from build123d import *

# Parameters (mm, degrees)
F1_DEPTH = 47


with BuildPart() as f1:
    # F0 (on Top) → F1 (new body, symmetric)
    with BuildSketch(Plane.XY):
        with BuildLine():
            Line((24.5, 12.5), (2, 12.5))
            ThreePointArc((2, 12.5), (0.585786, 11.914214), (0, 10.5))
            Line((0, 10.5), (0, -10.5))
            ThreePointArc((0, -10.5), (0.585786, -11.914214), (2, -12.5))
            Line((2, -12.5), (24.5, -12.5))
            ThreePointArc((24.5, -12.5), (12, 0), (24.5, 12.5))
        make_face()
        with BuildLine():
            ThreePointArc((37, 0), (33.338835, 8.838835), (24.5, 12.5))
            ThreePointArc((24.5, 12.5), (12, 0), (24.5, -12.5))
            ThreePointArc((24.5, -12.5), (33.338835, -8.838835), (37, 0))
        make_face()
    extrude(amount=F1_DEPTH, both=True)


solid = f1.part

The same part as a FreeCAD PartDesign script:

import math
import FreeCAD as App
import Part
import Sketcher

V = App.Vector

doc = App.newDocument("Part")
body = doc.addObject("PartDesign::Body", "Body")

# Sketch on XY plane
sketch1 = doc.addObject("Sketcher::SketchObject", "Sketch")
body.addObject(sketch1)
sketch1.AttachmentSupport = (doc.XY_Plane, [""])
sketch1.MapMode = "FlatFace"
sketch1.addGeometry(Part.LineSegment(V(24.5, 12.5, 0), V(2, 12.5, 0)), False)
sketch1.addGeometry(Part.ArcOfCircle(Part.Circle(V(1.999999, 10.500001, 0), V(0, 0, 1), 1.999999), math.radians(89.999957), math.radians(180.000043)), False)
sketch1.addGeometry(Part.LineSegment(V(0, 10.5, 0), V(0, -10.5, 0)), False)
sketch1.addGeometry(Part.ArcOfCircle(Part.Circle(V(1.999999, -10.500001, 0), V(0, 0, 1), 1.999999), math.radians(179.999957), math.radians(270.000043)), False)
sketch1.addGeometry(Part.LineSegment(V(2, -12.5, 0), V(24.5, -12.5, 0)), False)
sketch1.addGeometry(Part.ArcOfCircle(Part.Circle(V(24.500001, -0.000001, 0), V(0, 0, 1), 12.499999), math.radians(-90.000004), math.radians(0.000004)), False)
sketch1.addGeometry(Part.ArcOfCircle(Part.Circle(V(24.500001, 0.000001, 0), V(0, 0, 1), 12.499999), math.radians(-0.000004), math.radians(90.000004)), False)
sketch1.addConstraint(Sketcher.Constraint("Tangent", 0, 2, 1, 1))
sketch1.addConstraint(Sketcher.Constraint("Tangent", 1, 2, 2, 1))
sketch1.addConstraint(Sketcher.Constraint("Tangent", 2, 2, 3, 1))
sketch1.addConstraint(Sketcher.Constraint("Tangent", 3, 2, 4, 1))
sketch1.addConstraint(Sketcher.Constraint("Tangent", 4, 2, 5, 1))
sketch1.addConstraint(Sketcher.Constraint("Tangent", 5, 2, 6, 1))
sketch1.addConstraint(Sketcher.Constraint("Tangent", 6, 2, 0, 1))
sketch1.addConstraint(Sketcher.Constraint("Horizontal", 0))
sketch1.addConstraint(Sketcher.Constraint("Vertical", 2))
sketch1.addConstraint(Sketcher.Constraint("Horizontal", 4))
sketch1.addConstraint(Sketcher.Constraint("Equal", 1, 3))
sketch1.addConstraint(Sketcher.Constraint("Equal", 5, 6))
sketch1.addConstraint(Sketcher.Constraint("Symmetric", 1, 2, 2, 2, -1, 1))
sketch1.addConstraint(Sketcher.Constraint("PointOnObject", 5, 2, -1))
sketch1.addConstraint(Sketcher.Constraint("Radius", 1, 1.999999))
sketch1.addConstraint(Sketcher.Constraint("Radius", 5, 12.499999))
sketch1.addConstraint(Sketcher.Constraint("DistanceX", 0, 2, 0, 1, 22.5))
pad1 = doc.addObject("PartDesign::Pad", "Pad")
body.addObject(pad1)
pad1.Profile = sketch1
pad1.Length = 94
pad1.Midplane = True

doc.recompute()
